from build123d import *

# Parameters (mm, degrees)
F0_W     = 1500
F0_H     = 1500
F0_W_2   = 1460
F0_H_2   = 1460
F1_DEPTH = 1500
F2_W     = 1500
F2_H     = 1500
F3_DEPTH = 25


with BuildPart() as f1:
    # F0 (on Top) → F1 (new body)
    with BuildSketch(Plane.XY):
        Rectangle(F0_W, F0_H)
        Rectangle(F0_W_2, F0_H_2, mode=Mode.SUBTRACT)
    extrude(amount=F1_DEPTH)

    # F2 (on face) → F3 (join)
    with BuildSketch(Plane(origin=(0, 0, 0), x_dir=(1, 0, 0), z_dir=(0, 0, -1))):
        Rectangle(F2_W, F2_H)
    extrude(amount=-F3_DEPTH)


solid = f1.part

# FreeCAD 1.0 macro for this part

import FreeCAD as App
import Part
import Sketcher


def add_polygon(sketch, points):
    """Adds a closed chain of lines whose ends are joined by coincident constraints."""
    first, n = sketch.GeometryCount, len(points)
    for a, b in zip(points, points[1:] + points[:1]):
        sketch.addGeometry(Part.LineSegment(App.Vector(*a, 0), App.Vector(*b, 0)), False)
    for i in range(n):
        sketch.addConstraint(Sketcher.Constraint("Coincident", first + i, 2, first + (i + 1) % n, 1))

doc = App.newDocument("Part")
params = doc.addObject("Spreadsheet::Sheet", "Params")
for row, (alias, value) in enumerate([
    ("sketch1_width", "1500 mm"),
    ("sketch1_width2", "1460 mm"),
    ("pad1_length", "1500 mm"),
    ("sketch2_width", "1500 mm"),
    ("pad2_length", "25 mm"),
], start=1):
    params.set(f"A{row}", alias)
    params.set(f"B{row}", "=" + value)
    params.setAlias(f"B{row}", alias)

body = doc.addObject("PartDesign::Body", "Body")

# Sketch on XY plane
sketch1 = body.newObject("Sketcher::SketchObject", "Sketch")
sketch1.AttachmentSupport = (doc.getObject("XY_Plane"), [""])
sketch1.MapMode = "FlatFace"
add_polygon(sketch1, [(-750, 750), (-750, -750), (750, -750), (750, 750)])  # lines 0-3
add_polygon(sketch1, [(730, -730), (-730, -730), (-730, 730), (730, 730)])  # lines 4-7
sketch1.addConstraint([
    Sketcher.Constraint("Vertical", 0),
    Sketcher.Constraint("Horizontal", 1),
    Sketcher.Constraint("Vertical", 2),
    Sketcher.Constraint("Horizontal", 3),
    Sketcher.Constraint("Horizontal", 4),
    Sketcher.Constraint("Vertical", 5),
    Sketcher.Constraint("Horizontal", 6),
    Sketcher.Constraint("Vertical", 7),
    Sketcher.Constraint("Symmetric", 0, 2, 2, 2, -1, 1),
    Sketcher.Constraint("Symmetric", 4, 2, 6, 2, -1, 1),
    Sketcher.Constraint("Equal", 3, 0),
    Sketcher.Constraint("Equal", 6, 5),
    Sketcher.Constraint("DistanceX", 1, 1, 1, 2, 1500.0),
    Sketcher.Constraint("DistanceX", 4, 2, 4, 1, 1460.0),
])
sketch1.setExpression("Constraints[20]", "Params.sketch1_width")
sketch1.setExpression("Constraints[21]", "Params.sketch1_width2")
pad1 = body.newObject("PartDesign::Pad", "Pad")
pad1.Profile = sketch1
pad1.setExpression("Length", "Params.pad1_length")

# Sketch on XY plane
sketch2 = body.newObject("Sketcher::SketchObject", "Sketch001")
sketch2.AttachmentSupport = (doc.getObject("XY_Plane"), [""])
sketch2.MapMode = "FlatFace"
add_polygon(sketch2, [(-750, -750), (-750, 750), (750, 750), (750, -750)])  # lines 0-3
sketch2.addConstraint([
    Sketcher.Constraint("Vertical", 0),
    Sketcher.Constraint("Horizontal", 1),
    Sketcher.Constraint("Vertical", 2),
    Sketcher.Constraint("Horizontal", 3),
    Sketcher.Constraint("Symmetric", 0, 2, 2, 2, -1, 1),
    Sketcher.Constraint("Equal", 3, 0),
    Sketcher.Constraint("DistanceX", 1, 1, 1, 2, 1500.0),
])
sketch2.setExpression("Constraints[10]", "Params.sketch2_width")
pad2 = body.newObject("PartDesign::Pad", "Pad001")
pad2.Profile = sketch2
pad2.setExpression("Length", "Params.pad2_length")

doc.recompute()
